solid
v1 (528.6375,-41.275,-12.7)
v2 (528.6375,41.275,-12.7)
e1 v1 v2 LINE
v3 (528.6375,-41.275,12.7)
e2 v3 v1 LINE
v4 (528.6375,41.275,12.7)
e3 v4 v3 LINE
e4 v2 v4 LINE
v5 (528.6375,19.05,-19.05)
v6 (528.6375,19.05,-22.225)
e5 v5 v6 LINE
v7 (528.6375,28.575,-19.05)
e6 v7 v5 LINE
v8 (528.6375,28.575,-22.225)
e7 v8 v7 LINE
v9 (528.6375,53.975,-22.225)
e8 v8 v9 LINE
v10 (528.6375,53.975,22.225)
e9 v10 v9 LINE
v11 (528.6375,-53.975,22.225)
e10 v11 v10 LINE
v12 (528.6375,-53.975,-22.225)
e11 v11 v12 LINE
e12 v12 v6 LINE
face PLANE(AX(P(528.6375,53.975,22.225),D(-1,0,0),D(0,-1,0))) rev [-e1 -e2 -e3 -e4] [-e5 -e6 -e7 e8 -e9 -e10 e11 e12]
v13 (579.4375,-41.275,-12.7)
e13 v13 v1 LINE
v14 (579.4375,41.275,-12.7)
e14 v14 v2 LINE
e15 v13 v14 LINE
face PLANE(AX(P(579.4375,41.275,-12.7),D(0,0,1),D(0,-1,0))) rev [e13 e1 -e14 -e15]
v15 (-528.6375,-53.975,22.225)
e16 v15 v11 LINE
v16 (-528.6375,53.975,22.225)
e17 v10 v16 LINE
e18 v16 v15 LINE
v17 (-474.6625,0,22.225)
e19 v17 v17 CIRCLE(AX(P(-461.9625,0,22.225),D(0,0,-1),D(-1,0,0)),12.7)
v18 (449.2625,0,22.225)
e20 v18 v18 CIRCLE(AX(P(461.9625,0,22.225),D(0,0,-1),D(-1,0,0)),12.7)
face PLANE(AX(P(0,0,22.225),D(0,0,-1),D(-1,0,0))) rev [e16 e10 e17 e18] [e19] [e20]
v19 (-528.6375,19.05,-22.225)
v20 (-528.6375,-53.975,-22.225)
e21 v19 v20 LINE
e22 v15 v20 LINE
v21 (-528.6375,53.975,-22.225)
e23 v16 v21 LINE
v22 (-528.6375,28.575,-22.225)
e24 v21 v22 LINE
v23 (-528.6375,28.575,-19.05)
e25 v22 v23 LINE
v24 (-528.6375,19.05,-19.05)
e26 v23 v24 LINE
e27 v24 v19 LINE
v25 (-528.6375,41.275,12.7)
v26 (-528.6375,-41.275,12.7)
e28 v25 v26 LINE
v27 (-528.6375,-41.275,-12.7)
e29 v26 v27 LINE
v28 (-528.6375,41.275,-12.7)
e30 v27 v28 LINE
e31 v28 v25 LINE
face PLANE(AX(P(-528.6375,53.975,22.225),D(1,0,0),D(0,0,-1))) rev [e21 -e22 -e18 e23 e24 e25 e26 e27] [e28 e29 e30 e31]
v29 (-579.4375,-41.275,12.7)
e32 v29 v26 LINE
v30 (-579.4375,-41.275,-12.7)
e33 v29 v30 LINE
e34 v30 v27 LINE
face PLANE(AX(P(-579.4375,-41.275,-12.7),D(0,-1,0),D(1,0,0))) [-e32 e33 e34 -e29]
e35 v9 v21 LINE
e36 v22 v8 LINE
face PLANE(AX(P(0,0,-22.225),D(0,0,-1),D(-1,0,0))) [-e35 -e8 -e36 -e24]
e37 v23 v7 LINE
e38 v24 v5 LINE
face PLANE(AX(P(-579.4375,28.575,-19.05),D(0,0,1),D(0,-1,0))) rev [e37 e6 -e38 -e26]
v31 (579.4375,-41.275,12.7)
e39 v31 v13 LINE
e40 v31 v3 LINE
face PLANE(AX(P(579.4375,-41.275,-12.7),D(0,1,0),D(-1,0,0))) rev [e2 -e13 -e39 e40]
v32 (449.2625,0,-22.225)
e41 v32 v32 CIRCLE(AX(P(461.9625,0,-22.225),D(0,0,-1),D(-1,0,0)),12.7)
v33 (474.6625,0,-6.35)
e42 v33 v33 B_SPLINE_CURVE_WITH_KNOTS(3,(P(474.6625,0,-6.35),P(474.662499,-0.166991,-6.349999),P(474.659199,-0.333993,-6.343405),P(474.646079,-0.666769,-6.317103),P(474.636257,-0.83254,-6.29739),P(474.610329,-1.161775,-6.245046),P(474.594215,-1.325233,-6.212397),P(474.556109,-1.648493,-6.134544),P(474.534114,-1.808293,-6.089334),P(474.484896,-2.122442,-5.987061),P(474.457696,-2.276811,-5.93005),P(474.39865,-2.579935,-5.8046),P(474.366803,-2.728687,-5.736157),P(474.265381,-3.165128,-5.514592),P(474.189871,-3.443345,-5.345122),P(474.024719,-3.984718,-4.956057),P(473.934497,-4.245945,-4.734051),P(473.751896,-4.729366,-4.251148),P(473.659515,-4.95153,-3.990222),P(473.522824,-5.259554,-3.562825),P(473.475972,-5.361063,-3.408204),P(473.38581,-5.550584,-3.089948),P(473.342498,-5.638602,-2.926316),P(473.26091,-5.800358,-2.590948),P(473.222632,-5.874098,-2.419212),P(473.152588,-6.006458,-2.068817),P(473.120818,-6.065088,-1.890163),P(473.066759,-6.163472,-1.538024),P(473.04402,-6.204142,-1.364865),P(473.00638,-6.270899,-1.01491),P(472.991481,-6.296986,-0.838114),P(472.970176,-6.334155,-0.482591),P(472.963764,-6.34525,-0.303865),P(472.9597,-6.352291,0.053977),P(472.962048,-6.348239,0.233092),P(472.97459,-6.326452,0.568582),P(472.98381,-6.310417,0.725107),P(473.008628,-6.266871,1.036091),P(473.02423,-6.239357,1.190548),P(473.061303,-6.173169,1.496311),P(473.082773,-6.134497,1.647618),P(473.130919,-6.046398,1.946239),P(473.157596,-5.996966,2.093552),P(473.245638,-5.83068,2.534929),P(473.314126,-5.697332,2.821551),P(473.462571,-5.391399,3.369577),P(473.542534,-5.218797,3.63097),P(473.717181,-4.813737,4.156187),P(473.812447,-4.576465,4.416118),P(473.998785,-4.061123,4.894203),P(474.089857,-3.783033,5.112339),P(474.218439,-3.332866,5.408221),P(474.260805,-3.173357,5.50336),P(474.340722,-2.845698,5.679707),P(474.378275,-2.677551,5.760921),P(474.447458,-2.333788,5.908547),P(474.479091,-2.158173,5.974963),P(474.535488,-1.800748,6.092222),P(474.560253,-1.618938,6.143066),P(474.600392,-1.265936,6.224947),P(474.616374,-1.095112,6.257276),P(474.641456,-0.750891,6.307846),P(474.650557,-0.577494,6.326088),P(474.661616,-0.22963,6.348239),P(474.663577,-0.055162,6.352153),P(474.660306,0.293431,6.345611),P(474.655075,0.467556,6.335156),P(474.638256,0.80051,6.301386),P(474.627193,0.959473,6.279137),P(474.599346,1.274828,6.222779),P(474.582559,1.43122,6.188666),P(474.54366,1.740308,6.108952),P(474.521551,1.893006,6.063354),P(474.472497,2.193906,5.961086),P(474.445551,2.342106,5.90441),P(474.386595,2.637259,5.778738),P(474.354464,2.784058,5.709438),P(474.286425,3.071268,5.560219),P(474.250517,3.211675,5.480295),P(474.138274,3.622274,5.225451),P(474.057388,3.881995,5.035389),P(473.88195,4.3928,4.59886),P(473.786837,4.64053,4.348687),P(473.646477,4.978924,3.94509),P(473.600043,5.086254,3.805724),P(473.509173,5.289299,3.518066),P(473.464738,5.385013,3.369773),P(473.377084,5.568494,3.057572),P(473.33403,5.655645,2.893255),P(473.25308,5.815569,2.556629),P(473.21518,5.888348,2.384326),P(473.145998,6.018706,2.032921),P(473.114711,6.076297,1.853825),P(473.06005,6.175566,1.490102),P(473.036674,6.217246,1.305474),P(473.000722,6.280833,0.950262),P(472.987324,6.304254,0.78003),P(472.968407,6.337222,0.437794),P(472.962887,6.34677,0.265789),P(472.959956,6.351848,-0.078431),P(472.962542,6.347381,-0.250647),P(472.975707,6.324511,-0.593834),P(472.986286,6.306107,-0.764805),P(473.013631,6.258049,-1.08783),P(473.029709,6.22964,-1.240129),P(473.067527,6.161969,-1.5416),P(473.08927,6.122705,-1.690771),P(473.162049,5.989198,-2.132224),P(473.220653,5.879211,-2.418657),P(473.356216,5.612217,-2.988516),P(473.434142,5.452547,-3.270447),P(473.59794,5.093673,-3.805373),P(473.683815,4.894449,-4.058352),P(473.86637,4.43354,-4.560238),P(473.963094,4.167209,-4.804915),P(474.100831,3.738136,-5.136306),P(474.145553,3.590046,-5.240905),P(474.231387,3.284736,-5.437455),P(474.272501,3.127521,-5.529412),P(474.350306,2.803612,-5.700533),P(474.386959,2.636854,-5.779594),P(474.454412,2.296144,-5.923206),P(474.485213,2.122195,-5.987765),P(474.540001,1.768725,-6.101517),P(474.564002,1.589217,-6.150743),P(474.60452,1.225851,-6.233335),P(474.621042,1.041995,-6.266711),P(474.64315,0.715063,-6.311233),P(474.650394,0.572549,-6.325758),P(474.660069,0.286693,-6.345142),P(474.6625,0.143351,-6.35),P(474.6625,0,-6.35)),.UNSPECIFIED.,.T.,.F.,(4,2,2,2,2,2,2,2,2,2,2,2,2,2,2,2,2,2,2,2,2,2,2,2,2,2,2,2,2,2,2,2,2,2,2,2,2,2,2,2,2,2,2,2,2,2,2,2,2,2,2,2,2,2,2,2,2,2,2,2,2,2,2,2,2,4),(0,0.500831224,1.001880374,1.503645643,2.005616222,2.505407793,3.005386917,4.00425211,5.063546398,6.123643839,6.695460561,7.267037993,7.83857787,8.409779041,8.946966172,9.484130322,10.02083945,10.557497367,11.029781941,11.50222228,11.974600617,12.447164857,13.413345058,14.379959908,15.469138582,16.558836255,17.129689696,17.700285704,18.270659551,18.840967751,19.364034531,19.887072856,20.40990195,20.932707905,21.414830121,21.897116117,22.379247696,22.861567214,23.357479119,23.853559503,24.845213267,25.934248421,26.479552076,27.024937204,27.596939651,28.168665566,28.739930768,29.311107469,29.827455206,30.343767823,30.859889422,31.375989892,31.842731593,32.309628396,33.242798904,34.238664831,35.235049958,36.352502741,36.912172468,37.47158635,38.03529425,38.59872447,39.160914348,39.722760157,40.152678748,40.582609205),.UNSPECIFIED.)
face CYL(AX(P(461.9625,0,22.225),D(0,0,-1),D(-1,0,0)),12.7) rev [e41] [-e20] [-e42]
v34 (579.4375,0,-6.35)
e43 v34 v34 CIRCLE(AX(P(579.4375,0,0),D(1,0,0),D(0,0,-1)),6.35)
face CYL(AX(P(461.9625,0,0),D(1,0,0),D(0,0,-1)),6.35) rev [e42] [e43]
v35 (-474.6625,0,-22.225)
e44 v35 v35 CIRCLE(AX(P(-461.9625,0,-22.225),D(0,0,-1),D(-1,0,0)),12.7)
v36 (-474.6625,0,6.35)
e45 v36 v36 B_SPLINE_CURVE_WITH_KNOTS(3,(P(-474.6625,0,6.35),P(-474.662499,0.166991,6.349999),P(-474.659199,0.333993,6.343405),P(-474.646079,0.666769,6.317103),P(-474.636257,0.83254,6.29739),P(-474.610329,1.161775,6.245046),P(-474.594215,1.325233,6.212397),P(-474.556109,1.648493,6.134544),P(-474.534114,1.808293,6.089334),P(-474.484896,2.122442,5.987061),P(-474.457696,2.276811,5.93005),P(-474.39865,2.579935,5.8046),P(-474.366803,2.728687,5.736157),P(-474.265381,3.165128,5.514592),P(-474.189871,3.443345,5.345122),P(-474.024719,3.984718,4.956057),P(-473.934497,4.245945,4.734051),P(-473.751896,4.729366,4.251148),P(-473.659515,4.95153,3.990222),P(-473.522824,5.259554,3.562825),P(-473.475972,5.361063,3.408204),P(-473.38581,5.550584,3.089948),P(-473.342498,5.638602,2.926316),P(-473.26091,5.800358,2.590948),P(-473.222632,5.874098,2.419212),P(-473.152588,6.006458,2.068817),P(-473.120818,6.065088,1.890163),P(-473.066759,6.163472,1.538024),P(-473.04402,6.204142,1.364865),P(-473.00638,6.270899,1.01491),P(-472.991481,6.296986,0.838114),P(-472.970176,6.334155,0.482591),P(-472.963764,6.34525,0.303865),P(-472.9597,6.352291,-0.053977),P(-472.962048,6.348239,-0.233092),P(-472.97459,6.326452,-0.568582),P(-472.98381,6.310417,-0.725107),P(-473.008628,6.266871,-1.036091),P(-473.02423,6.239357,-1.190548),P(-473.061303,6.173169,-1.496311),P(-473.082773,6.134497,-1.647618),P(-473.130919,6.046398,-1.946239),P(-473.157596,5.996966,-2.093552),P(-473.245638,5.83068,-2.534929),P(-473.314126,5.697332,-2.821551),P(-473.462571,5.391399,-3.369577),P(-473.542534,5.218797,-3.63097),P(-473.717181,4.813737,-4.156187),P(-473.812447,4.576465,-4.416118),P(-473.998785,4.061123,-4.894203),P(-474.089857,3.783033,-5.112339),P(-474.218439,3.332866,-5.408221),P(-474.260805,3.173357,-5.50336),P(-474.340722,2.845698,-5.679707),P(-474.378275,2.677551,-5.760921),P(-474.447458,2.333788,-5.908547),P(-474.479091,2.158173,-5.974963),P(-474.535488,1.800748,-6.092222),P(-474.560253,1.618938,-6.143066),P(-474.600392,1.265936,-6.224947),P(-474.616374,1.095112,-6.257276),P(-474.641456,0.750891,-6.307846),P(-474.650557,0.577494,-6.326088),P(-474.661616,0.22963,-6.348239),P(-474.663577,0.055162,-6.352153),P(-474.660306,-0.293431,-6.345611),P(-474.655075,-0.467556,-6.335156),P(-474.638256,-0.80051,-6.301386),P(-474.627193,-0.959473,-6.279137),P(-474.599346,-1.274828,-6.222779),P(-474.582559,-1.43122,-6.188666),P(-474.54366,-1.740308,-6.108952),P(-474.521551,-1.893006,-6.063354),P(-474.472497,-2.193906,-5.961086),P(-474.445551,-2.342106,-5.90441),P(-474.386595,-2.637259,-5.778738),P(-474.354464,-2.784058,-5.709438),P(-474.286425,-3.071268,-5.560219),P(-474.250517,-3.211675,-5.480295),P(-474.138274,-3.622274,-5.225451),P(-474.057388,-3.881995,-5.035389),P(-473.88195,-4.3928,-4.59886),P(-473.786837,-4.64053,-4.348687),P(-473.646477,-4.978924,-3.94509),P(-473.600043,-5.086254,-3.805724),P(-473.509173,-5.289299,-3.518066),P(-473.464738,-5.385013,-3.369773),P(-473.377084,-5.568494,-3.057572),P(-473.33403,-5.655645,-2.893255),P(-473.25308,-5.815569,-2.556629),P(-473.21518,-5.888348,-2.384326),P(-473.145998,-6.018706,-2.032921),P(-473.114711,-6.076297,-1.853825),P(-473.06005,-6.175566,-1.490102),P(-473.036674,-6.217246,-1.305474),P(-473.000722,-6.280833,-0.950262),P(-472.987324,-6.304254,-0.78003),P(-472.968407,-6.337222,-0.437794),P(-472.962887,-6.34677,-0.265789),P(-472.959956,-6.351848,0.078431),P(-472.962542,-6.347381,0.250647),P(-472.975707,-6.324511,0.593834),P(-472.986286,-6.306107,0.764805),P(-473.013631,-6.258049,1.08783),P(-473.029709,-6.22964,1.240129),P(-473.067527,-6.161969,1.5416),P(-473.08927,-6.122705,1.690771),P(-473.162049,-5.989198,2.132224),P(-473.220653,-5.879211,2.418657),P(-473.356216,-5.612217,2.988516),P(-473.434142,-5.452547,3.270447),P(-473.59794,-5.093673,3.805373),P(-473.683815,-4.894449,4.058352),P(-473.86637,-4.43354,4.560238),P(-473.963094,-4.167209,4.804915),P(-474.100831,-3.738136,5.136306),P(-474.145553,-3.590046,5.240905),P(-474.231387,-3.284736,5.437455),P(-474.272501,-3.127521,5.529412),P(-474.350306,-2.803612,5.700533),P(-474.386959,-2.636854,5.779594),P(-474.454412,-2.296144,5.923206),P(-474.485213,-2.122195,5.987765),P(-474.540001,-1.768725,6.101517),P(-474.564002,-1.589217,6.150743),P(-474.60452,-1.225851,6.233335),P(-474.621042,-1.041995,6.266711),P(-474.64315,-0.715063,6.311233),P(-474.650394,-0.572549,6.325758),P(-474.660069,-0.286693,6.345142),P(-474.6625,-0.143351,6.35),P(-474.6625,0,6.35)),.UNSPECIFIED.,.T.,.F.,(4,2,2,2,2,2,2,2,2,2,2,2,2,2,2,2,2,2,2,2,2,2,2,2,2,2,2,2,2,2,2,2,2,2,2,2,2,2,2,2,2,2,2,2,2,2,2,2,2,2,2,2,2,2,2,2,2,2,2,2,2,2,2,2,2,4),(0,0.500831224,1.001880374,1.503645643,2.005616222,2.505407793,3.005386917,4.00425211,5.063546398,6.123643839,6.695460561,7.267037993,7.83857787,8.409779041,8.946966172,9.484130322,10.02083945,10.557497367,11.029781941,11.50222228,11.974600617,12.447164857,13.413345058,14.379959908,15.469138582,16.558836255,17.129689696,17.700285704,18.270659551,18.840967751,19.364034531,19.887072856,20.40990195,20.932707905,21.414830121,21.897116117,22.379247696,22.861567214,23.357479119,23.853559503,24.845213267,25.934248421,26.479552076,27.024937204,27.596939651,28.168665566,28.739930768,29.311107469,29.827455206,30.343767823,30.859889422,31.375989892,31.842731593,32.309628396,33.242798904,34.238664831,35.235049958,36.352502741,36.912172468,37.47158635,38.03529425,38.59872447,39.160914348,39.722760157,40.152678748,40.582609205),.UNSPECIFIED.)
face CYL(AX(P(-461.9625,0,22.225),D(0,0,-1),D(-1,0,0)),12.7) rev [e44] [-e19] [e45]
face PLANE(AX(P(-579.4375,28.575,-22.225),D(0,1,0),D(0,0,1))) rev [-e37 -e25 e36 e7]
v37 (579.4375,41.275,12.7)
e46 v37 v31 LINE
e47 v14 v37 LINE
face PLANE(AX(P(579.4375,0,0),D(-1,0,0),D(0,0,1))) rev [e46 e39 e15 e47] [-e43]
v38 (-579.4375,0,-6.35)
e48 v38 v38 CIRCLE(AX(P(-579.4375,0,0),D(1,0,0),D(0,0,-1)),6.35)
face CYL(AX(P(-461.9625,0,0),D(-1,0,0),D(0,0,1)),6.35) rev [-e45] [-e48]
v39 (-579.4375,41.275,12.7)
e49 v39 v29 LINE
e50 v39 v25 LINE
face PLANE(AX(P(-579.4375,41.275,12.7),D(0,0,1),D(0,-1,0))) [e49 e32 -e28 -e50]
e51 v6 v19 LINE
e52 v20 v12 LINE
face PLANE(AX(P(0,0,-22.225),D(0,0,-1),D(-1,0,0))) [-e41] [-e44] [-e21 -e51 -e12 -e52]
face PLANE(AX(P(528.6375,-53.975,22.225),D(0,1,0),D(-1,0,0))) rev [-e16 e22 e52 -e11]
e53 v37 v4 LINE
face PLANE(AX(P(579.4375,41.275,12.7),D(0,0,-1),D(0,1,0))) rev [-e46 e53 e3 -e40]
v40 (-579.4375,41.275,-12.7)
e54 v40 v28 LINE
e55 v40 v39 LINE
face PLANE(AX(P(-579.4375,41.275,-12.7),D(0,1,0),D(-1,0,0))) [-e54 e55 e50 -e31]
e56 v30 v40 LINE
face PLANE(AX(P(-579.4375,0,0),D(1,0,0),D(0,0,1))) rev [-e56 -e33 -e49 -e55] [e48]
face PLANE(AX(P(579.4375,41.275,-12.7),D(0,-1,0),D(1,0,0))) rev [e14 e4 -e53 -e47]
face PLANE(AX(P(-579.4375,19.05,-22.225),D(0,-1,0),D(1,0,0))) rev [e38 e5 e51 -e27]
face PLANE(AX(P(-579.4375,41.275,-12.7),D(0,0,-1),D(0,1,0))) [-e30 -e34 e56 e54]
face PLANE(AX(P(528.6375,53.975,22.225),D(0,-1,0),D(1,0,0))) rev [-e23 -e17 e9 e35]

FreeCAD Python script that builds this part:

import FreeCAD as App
import Part
import Sketcher

V = App.Vector
Q = App.Units.Quantity

doc = App.newDocument("Part")
params = doc.addObject("Spreadsheet::Sheet", "Params")
for row, (alias, value) in enumerate([
    ("sketch1_height", "4.25 in"),
    ("sketch1_width", "41.625 in"),
    ("pad1_length", "1.75 in"),
    ("sketch2_height", "1 in"),
    ("sketch2_width", "3.25 in"),
    ("pad2_length", "2 in"),
    ("sketch3_diameter", "0.5 in"),
    ("pocket1_length", "4.625 in"),
    ("sketch4_width", "0.375 in"),
    ("sketch4_height", "0.125 in"),
    ("sketch5_diameter", "1 in"),
], start=1):
    params.set(f"A{row}", alias)
    params.set(f"B{row}", "=" + value)
    params.setAlias(f"B{row}", alias)

body = doc.addObject("PartDesign::Body", "Body")

# Sketch on XY plane
sketch1 = body.newObject("Sketcher::SketchObject", "Sketch")
sketch1.AttachmentSupport = (doc.getObject("XY_Plane"), [""])
sketch1.MapMode = "FlatFace"
sketch1.addGeometry([
    Part.LineSegment(V(-528.6375, 53.975, 0), V(-528.6375, -53.975, 0)),
    Part.LineSegment(V(-528.6375, -53.975, 0), V(528.6375, -53.975, 0)),
    Part.LineSegment(V(528.6375, -53.975, 0), V(528.6375, 53.975, 0)),
    Part.LineSegment(V(528.6375, 53.975, 0), V(-528.6375, 53.975, 0)),
], False)
sketch1.addConstraint([
    Sketcher.Constraint("Coincident", 0, 2, 1, 1),
    Sketcher.Constraint("Coincident", 1, 2, 2, 1),
    Sketcher.Constraint("Coincident", 2, 2, 3, 1),
    Sketcher.Constraint("Coincident", 3, 2, 0, 1),
    Sketcher.Constraint("Vertical", 0),
    Sketcher.Constraint("Horizontal", 1),
    Sketcher.Constraint("Vertical", 2),
    Sketcher.Constraint("Horizontal", 3),
    Sketcher.Constraint("Symmetric", 0, 2, 2, 2, -1, 1),
    Sketcher.Constraint("DistanceY", 0, 2, 0, 1, Q("4.25 in")),
    Sketcher.Constraint("DistanceX", 1, 1, 1, 2, Q("41.625 in")),
])
sketch1.setExpression("Constraints[9]", "Params.sketch1_height")
sketch1.setExpression("Constraints[10]", "Params.sketch1_width")
pad1 = body.newObject("PartDesign::Pad", "Pad")
pad1.Profile = sketch1
pad1.setExpression("Length", "Params.pad1_length")
pad1.Midplane = True

# Sketch on YZ plane
sketch2 = body.newObject("Sketcher::SketchObject", "Sketch001")
sketch2.AttachmentSupport = (doc.getObject("YZ_Plane"), [""])
sketch2.MapMode = "FlatFace"
sketch2.AttachmentOffset = App.Placement(V(0, 0, 20.8125 * 25.4), App.Rotation())
sketch2.addGeometry([
    Part.LineSegment(V(41.275, 12.7, 0), V(-41.275, 12.7, 0)),
    Part.LineSegment(V(-41.275, 12.7, 0), V(-41.275, -12.7, 0)),
    Part.LineSegment(V(-41.275, -12.7, 0), V(41.275, -12.7, 0)),
    Part.LineSegment(V(41.275, -12.7, 0), V(41.275, 12.7, 0)),
], False)
sketch2.addConstraint([
    Sketcher.Constraint("Coincident", 0, 2, 1, 1),
    Sketcher.Constraint("Coincident", 1, 2, 2, 1),
    Sketcher.Constraint("Coincident", 2, 2, 3, 1),
    Sketcher.Constraint("Coincident", 3, 2, 0, 1),
    Sketcher.Constraint("Horizontal", 0),
    Sketcher.Constraint("Vertical", 1),
    Sketcher.Constraint("Horizontal", 2),
    Sketcher.Constraint("Vertical", 3),
    Sketcher.Constraint("Symmetric", 0, 2, 2, 2, -1, 1),
    Sketcher.Constraint("DistanceY", 1, 2, 1, 1, Q("1 in")),
    Sketcher.Constraint("DistanceX", 0, 2, 0, 1, Q("3.25 in")),
])
sketch2.setExpression("Constraints[9]", "Params.sketch2_height")
sketch2.setExpression("Constraints[10]", "Params.sketch2_width")
pad2 = body.newObject("PartDesign::Pad", "Pad001")
pad2.Profile = sketch2
pad2.setExpression("Length", "Params.pad2_length")

# Sketch on YZ plane
sketch3 = body.newObject("Sketcher::SketchObject", "Sketch002")
sketch3.AttachmentSupport = (doc.getObject("YZ_Plane"), [""])
sketch3.MapMode = "FlatFace"
sketch3.AttachmentOffset = App.Placement(V(0, 0, 22.8125 * 25.4), App.Rotation())
sketch3.addGeometry(Part.Circle(V(0, 0, 0), V(0, 0, 1), 6.35), False)
sketch3.addConstraint([
    Sketcher.Constraint("Coincident", 0, 3, -1, 1),
    Sketcher.Constraint("Diameter", 0, Q("0.5 in")),
])
sketch3.setExpression("Constraints[1]", "Params.sketch3_diameter")
pocket1 = body.newObject("PartDesign::Pocket", "Pocket")
pocket1.Profile = sketch3
pocket1.setExpression("Length", "Params.pocket1_length")
doc.recompute()

mirrored = body.newObject("PartDesign::Mirrored", "Mirrored")
mirrored.Originals = [pad2, pocket1]
mirrored.MirrorPlane = (doc.getObject("YZ_Plane"), [""])
body.Tip = mirrored

# Sketch on YZ plane
sketch4 = body.newObject("Sketcher::SketchObject", "Sketch003")
sketch4.AttachmentSupport = (doc.getObject("YZ_Plane"), [""])
sketch4.MapMode = "FlatFace"
sketch4.AttachmentOffset = App.Placement(V(0, 0, 20.8125 * 25.4), App.Rotation())
sketch4.addGeometry([
    Part.LineSegment(V(28.575, -19.05, 0), V(19.05, -19.05, 0)),
    Part.LineSegment(V(19.05, -19.05, 0), V(19.05, -22.225, 0)),
    Part.LineSegment(V(19.05, -22.225, 0), V(28.575, -22.225, 0)),
    Part.LineSegment(V(28.575, -22.225, 0), V(28.575, -19.05, 0)),
], False)
sketch4.addConstraint([
    Sketcher.Constraint("Coincident", 0, 2, 1, 1),
    Sketcher.Constraint("Coincident", 1, 2, 2, 1),
    Sketcher.Constraint("Coincident", 2, 2, 3, 1),
    Sketcher.Constraint("Coincident", 3, 2, 0, 1),
    Sketcher.Constraint("Horizontal", 0),
    Sketcher.Constraint("Vertical", 1),
    Sketcher.Constraint("Horizontal", 2),
    Sketcher.Constraint("Vertical", 3),
    Sketcher.Constraint("DistanceX", 0, 2, 0, 1, Q("0.375 in")),
    Sketcher.Constraint("DistanceY", 1, 2, 1, 1, Q("0.125 in")),
    Sketcher.Constraint("DistanceX", -1, 1, 0, 2, Q("0.75 in")),
    Sketcher.Constraint("DistanceY", 0, 2, -1, 1, Q("0.75 in")),
])
sketch4.setExpression("Constraints[8]", "Params.sketch4_width")
sketch4.setExpression("Constraints[9]", "Params.sketch4_height")
pocket2 = body.newObject("PartDesign::Pocket", "Pocket001")
pocket2.Profile = sketch4
pocket2.Type = "ThroughAll"

# Sketch on XY plane
sketch5 = body.newObject("Sketcher::SketchObject", "Sketch004")
sketch5.AttachmentSupport = (doc.getObject("XY_Plane"), [""])
sketch5.MapMode = "FlatFace"
sketch5.AttachmentOffset = App.Placement(V(0, 0, -0.875 * 25.4), App.Rotation())
sketch5.addGeometry([
    Part.Circle(V(-461.9625, 0, 0), V(0, 0, 1), 12.7),
    Part.Circle(V(461.9625, 0, 0), V(0, 0, 1), 12.7),
], False)
sketch5.addConstraint([
    Sketcher.Constraint("Equal", 0, 1),
    Sketcher.Constraint("Symmetric", 0, 3, 1, 3, -1, 1),
    Sketcher.Constraint("PointOnObject", 0, 3, -1),
    Sketcher.Constraint("Diameter", 0, Q("1 in")),
    Sketcher.Constraint("DistanceX", 0, 3, -1, 1, Q("18.1875 in")),
])
sketch5.setExpression("Constraints[3]", "Params.sketch5_diameter")
pocket3 = body.newObject("PartDesign::Pocket", "Pocket002")
pocket3.Profile = sketch5
pocket3.Type = "ThroughAll"
pocket3.Reversed = True

doc.recompute()
